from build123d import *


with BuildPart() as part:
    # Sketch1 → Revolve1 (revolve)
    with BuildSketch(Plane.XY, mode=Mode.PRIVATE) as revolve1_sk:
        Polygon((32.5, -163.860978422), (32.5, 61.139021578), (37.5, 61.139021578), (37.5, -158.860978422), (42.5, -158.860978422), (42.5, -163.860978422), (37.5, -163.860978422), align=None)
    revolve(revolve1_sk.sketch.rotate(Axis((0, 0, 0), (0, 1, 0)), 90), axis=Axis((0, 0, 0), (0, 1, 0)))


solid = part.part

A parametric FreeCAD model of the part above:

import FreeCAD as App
import Part
import Sketcher

V = App.Vector


def add_polygon(sketch, points):
    """Adds a closed chain of lines whose ends are joined by coincident constraints."""
    first, n = sketch.GeometryCount, len(points)
    for a, b in zip(points, points[1:] + points[:1]):
        sketch.addGeometry(Part.LineSegment(App.Vector(*a, 0), App.Vector(*b, 0)), False)
    for i in range(n):
        sketch.addConstraint(Sketcher.Constraint("Coincident", first + i, 2, first + (i + 1) % n, 1))

doc = App.newDocument("Part")
body = doc.addObject("PartDesign::Body", "Body")

# Sketch on XY plane
sketch1 = body.newObject("Sketcher::SketchObject", "Sketch")
sketch1.AttachmentSupport = (doc.getObject("XY_Plane"), [""])
sketch1.MapMode = "FlatFace"
add_polygon(sketch1, [(32, 61), (32, -164), (42, -164), (42, -159), (38, -159), (38, 61)])  # lines 0-5
sketch1.addConstraint([
    Sketcher.Constraint("Vertical", 0),
    Sketcher.Constraint("Horizontal", 1),
    Sketcher.Constraint("Vertical", 2),
    Sketcher.Constraint("Horizontal", 3),
    Sketcher.Constraint("Vertical", 4),
    Sketcher.Constraint("Horizontal", 5),
    Sketcher.Constraint("Equal", 3, 5),
    Sketcher.Constraint("Equal", 5, 2),
    Sketcher.Constraint("DistanceX", 1, 1, 1, 2, 10.0),
    Sketcher.Constraint("DistanceY", 0, 2, 0, 1, 225.0),
    Sketcher.Constraint("DistanceX", -1, 1, 0, 2, 32.5),
    Sketcher.Constraint("DistanceY", 0, 2, -1, 1, 163.860978),
])
revolution = body.newObject("PartDesign::Revolution", "Revolution")
revolution.Profile = sketch1
revolution.ReferenceAxis = (sketch1, ["V_Axis"])
revolution.Angle = 360

doc.recompute()
